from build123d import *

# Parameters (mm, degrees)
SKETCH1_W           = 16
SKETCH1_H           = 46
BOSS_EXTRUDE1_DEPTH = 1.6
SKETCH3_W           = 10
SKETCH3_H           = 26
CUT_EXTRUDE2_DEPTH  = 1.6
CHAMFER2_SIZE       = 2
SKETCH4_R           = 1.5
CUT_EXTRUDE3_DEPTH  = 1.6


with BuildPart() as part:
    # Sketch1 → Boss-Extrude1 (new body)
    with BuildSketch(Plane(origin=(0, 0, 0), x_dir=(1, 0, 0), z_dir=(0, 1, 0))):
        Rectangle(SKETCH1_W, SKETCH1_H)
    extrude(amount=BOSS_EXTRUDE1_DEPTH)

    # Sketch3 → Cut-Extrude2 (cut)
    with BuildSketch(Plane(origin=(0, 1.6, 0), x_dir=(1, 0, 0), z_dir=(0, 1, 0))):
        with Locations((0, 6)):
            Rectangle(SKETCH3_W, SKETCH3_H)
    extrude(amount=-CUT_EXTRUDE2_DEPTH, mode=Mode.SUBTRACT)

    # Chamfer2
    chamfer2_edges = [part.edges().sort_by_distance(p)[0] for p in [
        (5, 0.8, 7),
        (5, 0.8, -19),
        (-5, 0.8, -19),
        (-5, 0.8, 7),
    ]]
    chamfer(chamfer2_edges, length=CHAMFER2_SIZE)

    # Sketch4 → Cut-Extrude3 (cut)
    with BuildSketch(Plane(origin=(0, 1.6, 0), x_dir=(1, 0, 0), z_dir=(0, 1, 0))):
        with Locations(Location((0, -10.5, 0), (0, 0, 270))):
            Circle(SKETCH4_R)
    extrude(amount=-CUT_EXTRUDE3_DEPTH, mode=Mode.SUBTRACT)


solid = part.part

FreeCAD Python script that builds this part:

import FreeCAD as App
import Part
import Sketcher

V = App.Vector
Q = App.Units.Quantity


def edges_at(feature, points):
    """Names of the edges that pass closest to the given points."""
    edges = feature.Shape.Edges
    near = lambda p: min(range(len(edges)), key=lambda i: edges[i].distToShape(Part.Vertex(*p))[0])
    return sorted({f"Edge{near(p) + 1}" for p in points})


def add_polygon(sketch, points):
    """Adds a closed chain of lines whose ends are joined by coincident constraints."""
    first, n = sketch.GeometryCount, len(points)
    for a, b in zip(points, points[1:] + points[:1]):
        sketch.addGeometry(Part.LineSegment(App.Vector(*a, 0), App.Vector(*b, 0)), False)
    for i in range(n):
        sketch.addConstraint(Sketcher.Constraint("Coincident", first + i, 2, first + (i + 1) % n, 1))

doc = App.newDocument("Part")
body = doc.addObject("PartDesign::Body", "Body")

# Sketch on XZ plane
sketch1 = body.newObject("Sketcher::SketchObject", "Sketch")
sketch1.AttachmentSupport = (doc.getObject("XZ_Plane"), [""])
sketch1.MapMode = "FlatFace"
add_polygon(sketch1, [(-8, -23), (-8, 23), (8, 23), (8, -23)])  # lines 0-3
sketch1.addConstraint([
    Sketcher.Constraint("Vertical", 0),
    Sketcher.Constraint("Horizontal", 1),
    Sketcher.Constraint("Vertical", 2),
    Sketcher.Constraint("Horizontal", 3),
    Sketcher.Constraint("Symmetric", 0, 2, 2, 2, -1, 1),
    Sketcher.Constraint("DistanceX", 1, 1, 1, 2, Q("16 mm")),
    Sketcher.Constraint("DistanceY", 0, 1, 0, 2, Q("46 mm")),
])
pad1 = body.newObject("PartDesign::Pad", "Pad")
pad1.Profile = sketch1
pad1.Length = 1.6
pad1.Reversed = True

# Sketch on XZ plane
sketch2 = body.newObject("Sketcher::SketchObject", "Sketch001")
sketch2.AttachmentSupport = (doc.getObject("XZ_Plane"), [""])
sketch2.MapMode = "FlatFace"
sketch2.AttachmentOffset = App.Placement(V(0, 0, -1.6), App.Rotation())
add_polygon(sketch2, [(-5, -19), (-5, 7), (5, 7), (5, -19)])  # lines 0-3
sketch2.addConstraint([
    Sketcher.Constraint("Vertical", 0),
    Sketcher.Constraint("Horizontal", 1),
    Sketcher.Constraint("Vertical", 2),
    Sketcher.Constraint("Horizontal", 3),
    Sketcher.Constraint("DistanceX", 1, 1, 1, 2, Q("10 mm")),
    Sketcher.Constraint("DistanceY", 0, 1, 0, 2, Q("26 mm")),
    Sketcher.Constraint("DistanceX", 0, 2, -1, 1, Q("5 mm")),
    Sketcher.Constraint("DistanceY", -1, 1, 0, 2, Q("7 mm")),
])
pocket1 = body.newObject("PartDesign::Pocket", "Pocket")
pocket1.Profile = sketch2
pocket1.Length = 1.6
pocket1.Reversed = True
doc.recompute()

chamfer = body.newObject("PartDesign::Chamfer", "Chamfer")
chamfer.Base = (pocket1, edges_at(pocket1, [
    (5, 0.8, 7),
    (5, 0.8, -19),
    (-5, 0.8, -19),
    (-5, 0.8, 7),
]))
chamfer.Size = 2

# Sketch on XZ plane
sketch3 = body.newObject("Sketcher::SketchObject", "Sketch002")
sketch3.AttachmentSupport = (doc.getObject("XZ_Plane"), [""])
sketch3.MapMode = "FlatFace"
sketch3.AttachmentOffset = App.Placement(V(0, 0, -1.6), App.Rotation())
sketch3.addGeometry(Part.Circle(V(0, 10.5, 0), V(0, 0, 1), 1.5), False)
sketch3.addConstraint([
    Sketcher.Constraint("PointOnObject", 0, 3, -2),
    Sketcher.Constraint("Diameter", 0, Q("3 mm")),
    Sketcher.Constraint("DistanceY", -1, 1, 0, 3, Q("10.5 mm")),
])
pocket2 = body.newObject("PartDesign::Pocket", "Pocket001")
pocket2.Profile = sketch3
pocket2.Length = 1.6
pocket2.Reversed = True

doc.recompute()
